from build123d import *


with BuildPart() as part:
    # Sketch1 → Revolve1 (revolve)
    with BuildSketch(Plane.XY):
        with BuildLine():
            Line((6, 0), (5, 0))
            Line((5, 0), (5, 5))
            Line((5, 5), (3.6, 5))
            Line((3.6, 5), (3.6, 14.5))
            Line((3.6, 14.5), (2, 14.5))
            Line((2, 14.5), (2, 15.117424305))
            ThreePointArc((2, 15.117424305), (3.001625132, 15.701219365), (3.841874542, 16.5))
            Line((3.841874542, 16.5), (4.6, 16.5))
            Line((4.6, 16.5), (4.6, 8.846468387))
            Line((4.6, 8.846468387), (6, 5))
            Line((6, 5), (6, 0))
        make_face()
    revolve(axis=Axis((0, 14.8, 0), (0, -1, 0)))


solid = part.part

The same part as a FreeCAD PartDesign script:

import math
import FreeCAD as App
import Part
import Sketcher
from FreeCAD import Vector
Q = App.Units.Quantity

doc = App.newDocument("Part")
body = doc.addObject("PartDesign::Body", "Body")

sketch1 = body.newObject("Sketcher::SketchObject", "Sketch")
sketch1.AttachmentSupport = (doc.getObject("XY_Plane"), [""])
sketch1.MapMode = "FlatFace"
sketch1.addGeometry([
    Part.LineSegment(Vector(5, 0, 0), Vector(6, 0, 0)),
    Part.LineSegment(Vector(6, 0, 0), Vector(6, 5, 0)),
    Part.LineSegment(Vector(6, 5, 0), Vector(4.6, 8.8, 0)),
    Part.LineSegment(Vector(4.6, 8.8, 0), Vector(4.6, 16.5, 0)),
    Part.LineSegment(Vector(4.6, 16.5, 0), Vector(3.8, 16.5, 0)),
    Part.ArcOfCircle(Part.Circle(Vector(0, 19.7, 0), Vector(0, 0, 1), 5), math.radians(-66), math.radians(-40)),
    Part.LineSegment(Vector(2, 15.1, 0), Vector(2, 14.5, 0)),
    Part.LineSegment(Vector(2, 14.5, 0), Vector(3.6, 14.5, 0)),
    Part.LineSegment(Vector(3.6, 14.5, 0), Vector(3.6, 5, 0)),
    Part.LineSegment(Vector(3.6, 5, 0), Vector(5, 5, 0)),
    Part.LineSegment(Vector(5, 5, 0), Vector(5, 0, 0)),
], False)
sketch1.addConstraint([
    Sketcher.Constraint("Coincident", 0, 2, 1, 1),
    Sketcher.Constraint("Coincident", 1, 2, 2, 1),
    Sketcher.Constraint("Coincident", 2, 2, 3, 1),
    Sketcher.Constraint("Coincident", 3, 2, 4, 1),
    Sketcher.Constraint("Coincident", 4, 2, 5, 2),
    Sketcher.Constraint("Coincident", 5, 1, 6, 1),
    Sketcher.Constraint("Coincident", 6, 2, 7, 1),
    Sketcher.Constraint("Coincident", 7, 2, 8, 1),
    Sketcher.Constraint("Coincident", 8, 2, 9, 1),
    Sketcher.Constraint("Coincident", 9, 2, 10, 1),
    Sketcher.Constraint("Coincident", 10, 2, 0, 1),
    Sketcher.Constraint("Horizontal", 0),
    Sketcher.Constraint("Vertical", 1),
    Sketcher.Constraint("Vertical", 3),
    Sketcher.Constraint("Horizontal", 4),
    Sketcher.Constraint("Vertical", 6),
    Sketcher.Constraint("Horizontal", 7),
    Sketcher.Constraint("Vertical", 8),
    Sketcher.Constraint("Horizontal", 9),
    Sketcher.Constraint("Vertical", 10),
    Sketcher.Constraint("PointOnObject", 5, 3, -2),
    Sketcher.Constraint("PointOnObject", 0, 2, -1),
    Sketcher.Constraint("Horizontal", 1, 2, 8, 2),
    Sketcher.Constraint("Radius", 5, Q("5 mm")),
    Sketcher.Constraint("DistanceX", 0, 1, 0, 2, Q("1 mm")),
    Sketcher.Constraint("DistanceY", 1, 1, 1, 2, Q("5 mm")),
    Sketcher.Constraint("Angle", 2, Q("110 deg")),
    Sketcher.Constraint("DistanceX", 7, 1, 7, 2, Q("1.6 mm")),
    Sketcher.Constraint("DistanceX", 9, 1, 9, 2, Q("1.4 mm")),
    Sketcher.Constraint("DistanceY", 8, 2, 8, 1, Q("9.5 mm")),
    Sketcher.Constraint("DistanceX", -1, 1, 0, 2, Q("6 mm")),
    Sketcher.Constraint("DistanceY", 6, 2, 4, 2, Q("2 mm")),
    Sketcher.Constraint("DistanceX", 7, 2, 3, 2, Q("1 mm")),
    Sketcher.Constraint("DistanceY", -1, 1, 5, 3, Q("19.7 mm")),
])
revolution = body.newObject("PartDesign::Revolution", "Revolution")
revolution.Profile = sketch1
revolution.ReferenceAxis = (sketch1, ["V_Axis"])
revolution.Angle = 360

doc.recompute()
